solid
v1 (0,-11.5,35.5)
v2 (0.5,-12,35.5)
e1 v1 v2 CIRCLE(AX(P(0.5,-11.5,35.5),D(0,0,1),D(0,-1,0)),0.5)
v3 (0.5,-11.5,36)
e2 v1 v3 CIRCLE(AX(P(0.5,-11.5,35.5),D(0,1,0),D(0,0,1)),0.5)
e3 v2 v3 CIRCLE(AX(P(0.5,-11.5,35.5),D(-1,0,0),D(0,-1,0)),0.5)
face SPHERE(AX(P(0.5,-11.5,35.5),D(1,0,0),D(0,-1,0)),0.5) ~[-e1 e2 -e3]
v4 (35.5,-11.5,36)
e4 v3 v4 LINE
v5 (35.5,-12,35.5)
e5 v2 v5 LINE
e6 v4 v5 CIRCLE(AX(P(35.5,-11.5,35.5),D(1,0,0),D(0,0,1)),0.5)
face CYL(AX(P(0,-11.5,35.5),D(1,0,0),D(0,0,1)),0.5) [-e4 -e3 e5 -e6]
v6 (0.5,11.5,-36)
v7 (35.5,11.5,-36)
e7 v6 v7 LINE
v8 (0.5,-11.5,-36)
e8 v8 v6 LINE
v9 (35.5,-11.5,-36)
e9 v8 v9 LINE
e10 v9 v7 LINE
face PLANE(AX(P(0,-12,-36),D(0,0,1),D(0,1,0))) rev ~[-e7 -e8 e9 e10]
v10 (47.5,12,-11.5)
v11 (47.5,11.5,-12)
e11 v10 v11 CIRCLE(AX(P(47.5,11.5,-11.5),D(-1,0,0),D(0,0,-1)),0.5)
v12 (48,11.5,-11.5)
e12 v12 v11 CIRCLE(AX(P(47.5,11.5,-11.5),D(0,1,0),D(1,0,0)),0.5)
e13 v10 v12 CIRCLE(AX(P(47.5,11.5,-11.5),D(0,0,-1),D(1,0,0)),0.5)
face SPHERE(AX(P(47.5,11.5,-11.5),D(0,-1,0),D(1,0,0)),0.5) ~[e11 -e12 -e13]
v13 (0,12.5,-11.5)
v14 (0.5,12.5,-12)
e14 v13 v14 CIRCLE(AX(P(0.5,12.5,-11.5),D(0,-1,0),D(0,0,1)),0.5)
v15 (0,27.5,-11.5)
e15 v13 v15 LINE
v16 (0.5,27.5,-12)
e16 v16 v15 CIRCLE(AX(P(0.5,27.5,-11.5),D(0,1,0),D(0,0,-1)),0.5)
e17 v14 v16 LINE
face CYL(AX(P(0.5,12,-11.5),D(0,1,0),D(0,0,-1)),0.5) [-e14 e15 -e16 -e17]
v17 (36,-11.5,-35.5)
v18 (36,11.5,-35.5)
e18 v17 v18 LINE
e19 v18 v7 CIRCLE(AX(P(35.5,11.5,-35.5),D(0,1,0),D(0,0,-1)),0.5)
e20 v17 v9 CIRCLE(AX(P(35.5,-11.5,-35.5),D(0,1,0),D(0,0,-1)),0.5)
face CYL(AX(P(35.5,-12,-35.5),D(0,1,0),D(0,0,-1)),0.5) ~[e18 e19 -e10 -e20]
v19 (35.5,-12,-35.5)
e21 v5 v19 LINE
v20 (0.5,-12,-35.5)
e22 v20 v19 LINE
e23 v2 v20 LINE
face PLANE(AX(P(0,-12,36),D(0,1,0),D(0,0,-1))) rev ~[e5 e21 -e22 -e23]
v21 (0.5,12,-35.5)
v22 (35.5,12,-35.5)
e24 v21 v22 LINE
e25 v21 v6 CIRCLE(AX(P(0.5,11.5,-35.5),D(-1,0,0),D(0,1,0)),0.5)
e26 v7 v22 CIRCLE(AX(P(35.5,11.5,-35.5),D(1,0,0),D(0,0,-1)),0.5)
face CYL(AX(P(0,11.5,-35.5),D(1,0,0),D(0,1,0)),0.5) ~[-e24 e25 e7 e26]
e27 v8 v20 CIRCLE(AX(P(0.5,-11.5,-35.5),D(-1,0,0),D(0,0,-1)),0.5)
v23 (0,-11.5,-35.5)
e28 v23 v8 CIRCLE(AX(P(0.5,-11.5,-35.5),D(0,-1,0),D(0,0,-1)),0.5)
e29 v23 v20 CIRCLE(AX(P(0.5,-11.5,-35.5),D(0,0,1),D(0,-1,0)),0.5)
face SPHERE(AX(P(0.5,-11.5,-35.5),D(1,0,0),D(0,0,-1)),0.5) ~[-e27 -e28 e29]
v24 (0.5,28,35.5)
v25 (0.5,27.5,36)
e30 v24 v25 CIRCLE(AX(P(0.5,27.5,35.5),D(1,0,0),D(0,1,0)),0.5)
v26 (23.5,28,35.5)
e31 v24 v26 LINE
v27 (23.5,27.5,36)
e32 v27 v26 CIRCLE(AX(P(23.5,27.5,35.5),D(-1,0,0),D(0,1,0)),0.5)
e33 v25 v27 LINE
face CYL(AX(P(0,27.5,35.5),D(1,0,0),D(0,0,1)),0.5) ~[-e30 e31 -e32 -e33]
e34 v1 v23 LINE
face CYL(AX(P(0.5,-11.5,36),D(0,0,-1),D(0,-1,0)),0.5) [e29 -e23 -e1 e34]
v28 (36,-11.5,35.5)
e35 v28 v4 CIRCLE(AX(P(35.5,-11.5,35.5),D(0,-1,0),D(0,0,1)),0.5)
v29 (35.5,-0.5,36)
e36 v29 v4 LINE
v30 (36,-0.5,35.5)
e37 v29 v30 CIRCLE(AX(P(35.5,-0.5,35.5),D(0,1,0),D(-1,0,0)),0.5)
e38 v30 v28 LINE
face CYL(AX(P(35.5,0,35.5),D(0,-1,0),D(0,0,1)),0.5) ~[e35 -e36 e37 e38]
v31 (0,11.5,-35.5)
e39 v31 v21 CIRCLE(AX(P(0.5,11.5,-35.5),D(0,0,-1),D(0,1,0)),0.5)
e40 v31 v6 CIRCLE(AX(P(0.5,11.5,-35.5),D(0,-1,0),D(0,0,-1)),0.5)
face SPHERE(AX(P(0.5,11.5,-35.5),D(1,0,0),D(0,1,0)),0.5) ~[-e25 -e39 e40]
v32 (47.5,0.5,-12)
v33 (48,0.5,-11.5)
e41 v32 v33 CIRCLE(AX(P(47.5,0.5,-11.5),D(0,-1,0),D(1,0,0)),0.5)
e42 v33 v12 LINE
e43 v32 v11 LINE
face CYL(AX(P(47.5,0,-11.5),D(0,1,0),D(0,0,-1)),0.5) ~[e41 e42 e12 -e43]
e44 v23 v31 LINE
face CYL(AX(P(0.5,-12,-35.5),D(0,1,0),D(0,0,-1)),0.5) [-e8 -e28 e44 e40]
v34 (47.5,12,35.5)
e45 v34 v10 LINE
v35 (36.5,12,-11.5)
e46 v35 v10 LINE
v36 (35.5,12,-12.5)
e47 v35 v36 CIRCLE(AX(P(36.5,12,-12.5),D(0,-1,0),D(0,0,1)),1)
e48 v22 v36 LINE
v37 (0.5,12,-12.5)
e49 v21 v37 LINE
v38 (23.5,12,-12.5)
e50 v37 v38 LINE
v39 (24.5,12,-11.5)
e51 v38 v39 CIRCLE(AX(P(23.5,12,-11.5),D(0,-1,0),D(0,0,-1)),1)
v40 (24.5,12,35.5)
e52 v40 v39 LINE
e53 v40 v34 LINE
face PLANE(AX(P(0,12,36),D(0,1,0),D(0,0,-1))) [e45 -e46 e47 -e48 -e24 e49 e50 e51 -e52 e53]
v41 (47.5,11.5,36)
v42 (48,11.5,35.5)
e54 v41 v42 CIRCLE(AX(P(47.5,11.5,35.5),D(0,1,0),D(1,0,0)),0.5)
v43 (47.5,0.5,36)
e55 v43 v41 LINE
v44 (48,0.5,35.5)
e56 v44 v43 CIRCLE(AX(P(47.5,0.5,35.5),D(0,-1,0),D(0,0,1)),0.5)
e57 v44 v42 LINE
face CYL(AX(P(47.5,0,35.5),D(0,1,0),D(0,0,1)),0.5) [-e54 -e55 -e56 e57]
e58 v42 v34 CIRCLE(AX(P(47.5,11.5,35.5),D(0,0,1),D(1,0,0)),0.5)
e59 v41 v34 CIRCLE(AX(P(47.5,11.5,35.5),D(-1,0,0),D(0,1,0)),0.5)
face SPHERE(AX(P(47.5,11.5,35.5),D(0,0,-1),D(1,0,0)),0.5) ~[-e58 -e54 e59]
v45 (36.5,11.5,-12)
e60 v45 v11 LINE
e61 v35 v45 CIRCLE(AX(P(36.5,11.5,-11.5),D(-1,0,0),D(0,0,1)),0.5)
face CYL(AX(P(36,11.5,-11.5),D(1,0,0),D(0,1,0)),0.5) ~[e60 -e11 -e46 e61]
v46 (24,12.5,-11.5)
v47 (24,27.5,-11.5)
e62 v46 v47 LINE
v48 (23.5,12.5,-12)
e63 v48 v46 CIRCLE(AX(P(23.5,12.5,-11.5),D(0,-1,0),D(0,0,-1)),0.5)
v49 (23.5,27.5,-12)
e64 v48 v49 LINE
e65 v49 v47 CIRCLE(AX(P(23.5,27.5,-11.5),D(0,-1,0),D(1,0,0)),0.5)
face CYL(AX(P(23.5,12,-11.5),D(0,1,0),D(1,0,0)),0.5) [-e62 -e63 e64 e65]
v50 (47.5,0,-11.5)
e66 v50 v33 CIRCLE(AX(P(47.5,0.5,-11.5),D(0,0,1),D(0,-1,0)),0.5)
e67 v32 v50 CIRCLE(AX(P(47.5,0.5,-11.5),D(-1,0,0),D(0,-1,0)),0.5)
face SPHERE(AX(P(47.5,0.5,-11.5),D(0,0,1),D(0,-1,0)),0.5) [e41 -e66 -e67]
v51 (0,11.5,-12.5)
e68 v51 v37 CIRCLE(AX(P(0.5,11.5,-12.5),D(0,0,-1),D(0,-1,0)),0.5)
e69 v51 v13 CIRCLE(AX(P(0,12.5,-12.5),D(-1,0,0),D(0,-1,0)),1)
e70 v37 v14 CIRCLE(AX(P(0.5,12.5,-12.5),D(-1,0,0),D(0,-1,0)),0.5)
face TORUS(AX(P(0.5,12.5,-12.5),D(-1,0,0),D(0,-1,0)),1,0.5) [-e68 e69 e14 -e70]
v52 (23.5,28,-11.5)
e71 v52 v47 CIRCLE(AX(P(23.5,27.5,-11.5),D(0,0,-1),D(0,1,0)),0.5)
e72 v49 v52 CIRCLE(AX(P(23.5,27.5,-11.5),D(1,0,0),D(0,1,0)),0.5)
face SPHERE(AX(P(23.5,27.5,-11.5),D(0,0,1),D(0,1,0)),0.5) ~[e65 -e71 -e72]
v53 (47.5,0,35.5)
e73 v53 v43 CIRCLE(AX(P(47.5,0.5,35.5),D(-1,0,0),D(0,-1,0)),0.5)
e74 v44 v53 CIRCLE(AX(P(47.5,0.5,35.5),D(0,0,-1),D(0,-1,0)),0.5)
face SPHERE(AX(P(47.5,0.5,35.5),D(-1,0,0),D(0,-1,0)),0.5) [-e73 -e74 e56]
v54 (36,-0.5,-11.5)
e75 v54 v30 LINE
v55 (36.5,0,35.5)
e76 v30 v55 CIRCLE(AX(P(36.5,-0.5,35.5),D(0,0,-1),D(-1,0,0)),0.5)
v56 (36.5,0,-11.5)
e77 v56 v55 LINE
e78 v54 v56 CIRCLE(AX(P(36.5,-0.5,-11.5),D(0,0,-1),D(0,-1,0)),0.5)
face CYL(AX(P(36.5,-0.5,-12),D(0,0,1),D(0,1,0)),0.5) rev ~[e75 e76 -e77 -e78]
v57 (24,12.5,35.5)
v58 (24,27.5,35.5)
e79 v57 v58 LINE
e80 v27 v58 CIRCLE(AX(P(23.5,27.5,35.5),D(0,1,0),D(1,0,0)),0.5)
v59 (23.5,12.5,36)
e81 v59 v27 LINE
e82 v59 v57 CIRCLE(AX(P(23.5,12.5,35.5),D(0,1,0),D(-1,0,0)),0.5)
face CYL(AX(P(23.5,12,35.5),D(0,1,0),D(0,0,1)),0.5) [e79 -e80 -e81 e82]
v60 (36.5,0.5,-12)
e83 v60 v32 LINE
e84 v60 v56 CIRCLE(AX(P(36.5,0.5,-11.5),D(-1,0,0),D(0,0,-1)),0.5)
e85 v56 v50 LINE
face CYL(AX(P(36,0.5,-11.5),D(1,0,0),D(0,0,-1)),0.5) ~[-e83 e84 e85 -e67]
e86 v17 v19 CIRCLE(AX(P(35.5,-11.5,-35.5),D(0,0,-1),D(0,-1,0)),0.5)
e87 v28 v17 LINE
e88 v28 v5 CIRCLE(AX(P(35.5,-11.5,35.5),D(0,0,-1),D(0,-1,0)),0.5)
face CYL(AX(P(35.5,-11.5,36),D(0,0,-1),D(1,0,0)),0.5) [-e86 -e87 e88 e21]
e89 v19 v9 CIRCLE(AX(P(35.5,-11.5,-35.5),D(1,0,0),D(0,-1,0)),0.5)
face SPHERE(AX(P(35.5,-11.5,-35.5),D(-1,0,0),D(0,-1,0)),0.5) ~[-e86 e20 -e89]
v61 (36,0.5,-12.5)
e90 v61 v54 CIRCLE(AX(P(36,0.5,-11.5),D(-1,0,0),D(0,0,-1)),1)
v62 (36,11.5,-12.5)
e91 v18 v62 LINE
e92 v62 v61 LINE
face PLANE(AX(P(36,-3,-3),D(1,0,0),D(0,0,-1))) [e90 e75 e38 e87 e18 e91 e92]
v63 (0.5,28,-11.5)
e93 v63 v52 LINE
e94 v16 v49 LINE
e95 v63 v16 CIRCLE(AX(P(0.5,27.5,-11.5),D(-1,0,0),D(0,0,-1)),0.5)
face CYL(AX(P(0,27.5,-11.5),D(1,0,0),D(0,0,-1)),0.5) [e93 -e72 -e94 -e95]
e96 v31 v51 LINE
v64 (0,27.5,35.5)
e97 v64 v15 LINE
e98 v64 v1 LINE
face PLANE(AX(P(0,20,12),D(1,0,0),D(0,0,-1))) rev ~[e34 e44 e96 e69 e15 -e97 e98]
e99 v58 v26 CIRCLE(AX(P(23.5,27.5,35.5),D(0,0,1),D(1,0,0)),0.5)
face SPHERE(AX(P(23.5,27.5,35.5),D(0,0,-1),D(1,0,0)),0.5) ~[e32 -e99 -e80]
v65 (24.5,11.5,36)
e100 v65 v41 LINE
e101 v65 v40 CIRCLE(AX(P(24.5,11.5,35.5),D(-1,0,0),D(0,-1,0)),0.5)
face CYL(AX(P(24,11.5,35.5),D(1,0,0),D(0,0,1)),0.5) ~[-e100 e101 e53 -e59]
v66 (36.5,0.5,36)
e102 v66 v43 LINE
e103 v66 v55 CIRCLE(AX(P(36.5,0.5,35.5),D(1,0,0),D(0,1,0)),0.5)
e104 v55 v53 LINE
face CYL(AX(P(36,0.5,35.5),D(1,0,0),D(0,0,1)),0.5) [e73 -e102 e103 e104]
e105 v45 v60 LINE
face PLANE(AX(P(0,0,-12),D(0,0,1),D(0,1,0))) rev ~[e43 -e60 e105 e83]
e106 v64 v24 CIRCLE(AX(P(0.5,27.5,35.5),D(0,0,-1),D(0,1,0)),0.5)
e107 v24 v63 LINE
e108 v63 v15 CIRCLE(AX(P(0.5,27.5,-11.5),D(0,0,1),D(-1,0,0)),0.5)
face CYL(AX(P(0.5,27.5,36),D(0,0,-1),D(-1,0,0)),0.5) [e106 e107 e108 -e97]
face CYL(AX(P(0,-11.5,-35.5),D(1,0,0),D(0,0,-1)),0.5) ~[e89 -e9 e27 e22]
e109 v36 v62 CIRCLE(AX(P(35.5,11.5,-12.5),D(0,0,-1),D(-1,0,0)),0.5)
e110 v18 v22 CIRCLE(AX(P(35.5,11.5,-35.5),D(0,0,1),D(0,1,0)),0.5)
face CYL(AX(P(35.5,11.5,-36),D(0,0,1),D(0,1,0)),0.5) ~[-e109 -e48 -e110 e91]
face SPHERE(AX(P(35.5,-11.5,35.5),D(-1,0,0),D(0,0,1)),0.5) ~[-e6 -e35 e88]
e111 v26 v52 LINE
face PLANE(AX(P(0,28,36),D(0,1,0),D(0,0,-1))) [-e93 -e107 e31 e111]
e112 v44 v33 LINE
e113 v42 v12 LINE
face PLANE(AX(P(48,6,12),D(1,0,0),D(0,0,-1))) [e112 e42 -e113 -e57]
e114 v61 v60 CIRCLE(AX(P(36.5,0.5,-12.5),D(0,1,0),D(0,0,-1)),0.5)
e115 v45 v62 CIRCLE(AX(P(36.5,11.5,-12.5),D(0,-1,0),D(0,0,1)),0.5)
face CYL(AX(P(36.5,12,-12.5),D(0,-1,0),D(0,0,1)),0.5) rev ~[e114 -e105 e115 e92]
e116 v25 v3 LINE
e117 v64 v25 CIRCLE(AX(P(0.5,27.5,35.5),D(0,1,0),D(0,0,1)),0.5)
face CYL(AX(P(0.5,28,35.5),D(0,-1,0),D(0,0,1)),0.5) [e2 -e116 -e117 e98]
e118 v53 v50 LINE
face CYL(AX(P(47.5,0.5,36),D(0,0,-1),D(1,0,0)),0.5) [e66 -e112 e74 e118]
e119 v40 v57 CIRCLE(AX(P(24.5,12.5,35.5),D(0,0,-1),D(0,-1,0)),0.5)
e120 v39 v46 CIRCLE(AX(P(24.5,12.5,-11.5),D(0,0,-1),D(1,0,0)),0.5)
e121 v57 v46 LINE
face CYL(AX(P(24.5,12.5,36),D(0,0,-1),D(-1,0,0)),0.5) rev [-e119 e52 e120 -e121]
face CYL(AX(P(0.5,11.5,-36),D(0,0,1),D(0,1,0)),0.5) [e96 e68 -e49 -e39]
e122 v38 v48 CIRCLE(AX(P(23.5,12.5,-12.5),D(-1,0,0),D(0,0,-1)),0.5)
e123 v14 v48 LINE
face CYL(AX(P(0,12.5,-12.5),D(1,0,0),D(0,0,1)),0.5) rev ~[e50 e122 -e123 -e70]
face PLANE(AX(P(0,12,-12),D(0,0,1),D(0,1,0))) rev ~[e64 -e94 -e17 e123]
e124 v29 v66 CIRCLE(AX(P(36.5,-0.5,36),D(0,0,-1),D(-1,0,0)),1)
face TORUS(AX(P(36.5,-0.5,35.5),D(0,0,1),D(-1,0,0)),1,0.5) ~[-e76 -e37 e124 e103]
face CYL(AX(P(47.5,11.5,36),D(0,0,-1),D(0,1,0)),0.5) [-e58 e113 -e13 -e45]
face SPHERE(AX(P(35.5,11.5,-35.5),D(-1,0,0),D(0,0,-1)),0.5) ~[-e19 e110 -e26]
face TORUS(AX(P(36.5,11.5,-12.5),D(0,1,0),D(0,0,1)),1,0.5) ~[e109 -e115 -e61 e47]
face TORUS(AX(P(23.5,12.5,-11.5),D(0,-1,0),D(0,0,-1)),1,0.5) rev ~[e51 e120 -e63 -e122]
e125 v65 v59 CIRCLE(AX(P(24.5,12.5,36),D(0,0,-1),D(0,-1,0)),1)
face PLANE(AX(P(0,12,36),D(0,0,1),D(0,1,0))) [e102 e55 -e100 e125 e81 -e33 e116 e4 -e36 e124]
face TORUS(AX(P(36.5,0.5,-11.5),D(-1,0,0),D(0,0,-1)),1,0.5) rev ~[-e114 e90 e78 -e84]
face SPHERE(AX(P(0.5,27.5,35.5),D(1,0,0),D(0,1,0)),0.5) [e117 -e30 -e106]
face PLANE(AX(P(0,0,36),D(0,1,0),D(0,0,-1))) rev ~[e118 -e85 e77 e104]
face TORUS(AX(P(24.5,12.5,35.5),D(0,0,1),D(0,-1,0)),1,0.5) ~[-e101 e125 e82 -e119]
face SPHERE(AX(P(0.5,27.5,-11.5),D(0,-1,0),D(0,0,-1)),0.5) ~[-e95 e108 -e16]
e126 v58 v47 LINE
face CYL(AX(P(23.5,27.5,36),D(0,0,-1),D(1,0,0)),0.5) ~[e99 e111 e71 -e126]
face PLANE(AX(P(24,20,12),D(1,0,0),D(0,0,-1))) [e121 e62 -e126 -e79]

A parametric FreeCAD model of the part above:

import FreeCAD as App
import Part
import Sketcher
Q = App.Units.Quantity


def add_polygon(sketch, points):
    """Adds a closed chain of lines whose ends are joined by coincident constraints."""
    first, n = sketch.GeometryCount, len(points)
    for a, b in zip(points, points[1:] + points[:1]):
        sketch.addGeometry(Part.LineSegment(App.Vector(*a, 0), App.Vector(*b, 0)), False)
    for i in range(n):
        sketch.addConstraint(Sketcher.Constraint("Coincident", first + i, 2, first + (i + 1) % n, 1))

doc = App.newDocument("Part")
body = doc.addObject("PartDesign::Body", "Body")

# Sketch on YZ plane
sketch1 = body.newObject("Sketcher::SketchObject", "Sketch")
sketch1.AttachmentSupport = (doc.getObject("YZ_Plane"), [""])
sketch1.MapMode = "FlatFace"
add_polygon(sketch1, [(0, 36), (-12, 36), (-12, -36), (12, -36), (12, -12), (0, -12)])  # lines 0-5
sketch1.addConstraint([
    Sketcher.Constraint("Horizontal", 0),
    Sketcher.Constraint("Vertical", 1),
    Sketcher.Constraint("Horizontal", 2),
    Sketcher.Constraint("Vertical", 3),
    Sketcher.Constraint("Horizontal", 4),
    Sketcher.Constraint("Vertical", 5),
    Sketcher.Constraint("Symmetric", 0, 2, 2, 2, -1, 1),
    Sketcher.Constraint("PointOnObject", 4, 2, -2),
    Sketcher.Constraint("Equal", 2, 3),
    Sketcher.Constraint("DistanceX", 0, 2, 0, 1, Q("12 mm")),
    Sketcher.Constraint("DistanceY", 1, 2, 1, 1, Q("72 mm")),
])
pad1 = body.newObject("PartDesign::Pad", "Pad")
pad1.Profile = sketch1
pad1.Length = 36

# Sketch on YZ plane
sketch2 = body.newObject("Sketcher::SketchObject", "Sketch001")
sketch2.AttachmentSupport = (doc.getObject("YZ_Plane"), [""])
sketch2.MapMode = "FlatFace"
add_polygon(sketch2, [(12, 36), (0, 36), (0, -12), (12, -12)])  # lines 0-3
sketch2.addConstraint([
    Sketcher.Constraint("Horizontal", 0),
    Sketcher.Constraint("Vertical", 1),
    Sketcher.Constraint("Horizontal", 2),
    Sketcher.Constraint("Vertical", 3),
    Sketcher.Constraint("PointOnObject", 0, 2, -2),
    Sketcher.Constraint("DistanceX", 0, 2, 0, 1, Q("12 mm")),
    Sketcher.Constraint("DistanceY", 1, 2, 1, 1, Q("48 mm")),
    Sketcher.Constraint("DistanceY", -1, 1, 0, 2, Q("36 mm")),
])
pad2 = body.newObject("PartDesign::Pad", "Pad001")
pad2.Profile = sketch2
pad2.Length = 48

# Sketch on YZ plane
sketch3 = body.newObject("Sketcher::SketchObject", "Sketch002")
sketch3.AttachmentSupport = (doc.getObject("YZ_Plane"), [""])
sketch3.MapMode = "FlatFace"
add_polygon(sketch3, [(28, 36), (12, 36), (12, -12), (28, -12)])  # lines 0-3
sketch3.addConstraint([
    Sketcher.Constraint("Horizontal", 0),
    Sketcher.Constraint("Vertical", 1),
    Sketcher.Constraint("Horizontal", 2),
    Sketcher.Constraint("Vertical", 3),
    Sketcher.Constraint("DistanceX", 0, 2, 0, 1, Q("16 mm")),
    Sketcher.Constraint("DistanceY", 1, 2, 1, 1, Q("48 mm")),
    Sketcher.Constraint("DistanceX", -1, 1, 0, 2, Q("12 mm")),
    Sketcher.Constraint("DistanceY", -1, 1, 0, 2, Q("36 mm")),
])
pad3 = body.newObject("PartDesign::Pad", "Pad002")
pad3.Profile = sketch3
pad3.Length = 24
doc.recompute()

fillet = body.newObject("PartDesign::Fillet", "Fillet")
fillet.Base = (pad3, ["Edge1"])
fillet.UseAllEdges = True
fillet.Radius = 0.5

doc.recompute()
